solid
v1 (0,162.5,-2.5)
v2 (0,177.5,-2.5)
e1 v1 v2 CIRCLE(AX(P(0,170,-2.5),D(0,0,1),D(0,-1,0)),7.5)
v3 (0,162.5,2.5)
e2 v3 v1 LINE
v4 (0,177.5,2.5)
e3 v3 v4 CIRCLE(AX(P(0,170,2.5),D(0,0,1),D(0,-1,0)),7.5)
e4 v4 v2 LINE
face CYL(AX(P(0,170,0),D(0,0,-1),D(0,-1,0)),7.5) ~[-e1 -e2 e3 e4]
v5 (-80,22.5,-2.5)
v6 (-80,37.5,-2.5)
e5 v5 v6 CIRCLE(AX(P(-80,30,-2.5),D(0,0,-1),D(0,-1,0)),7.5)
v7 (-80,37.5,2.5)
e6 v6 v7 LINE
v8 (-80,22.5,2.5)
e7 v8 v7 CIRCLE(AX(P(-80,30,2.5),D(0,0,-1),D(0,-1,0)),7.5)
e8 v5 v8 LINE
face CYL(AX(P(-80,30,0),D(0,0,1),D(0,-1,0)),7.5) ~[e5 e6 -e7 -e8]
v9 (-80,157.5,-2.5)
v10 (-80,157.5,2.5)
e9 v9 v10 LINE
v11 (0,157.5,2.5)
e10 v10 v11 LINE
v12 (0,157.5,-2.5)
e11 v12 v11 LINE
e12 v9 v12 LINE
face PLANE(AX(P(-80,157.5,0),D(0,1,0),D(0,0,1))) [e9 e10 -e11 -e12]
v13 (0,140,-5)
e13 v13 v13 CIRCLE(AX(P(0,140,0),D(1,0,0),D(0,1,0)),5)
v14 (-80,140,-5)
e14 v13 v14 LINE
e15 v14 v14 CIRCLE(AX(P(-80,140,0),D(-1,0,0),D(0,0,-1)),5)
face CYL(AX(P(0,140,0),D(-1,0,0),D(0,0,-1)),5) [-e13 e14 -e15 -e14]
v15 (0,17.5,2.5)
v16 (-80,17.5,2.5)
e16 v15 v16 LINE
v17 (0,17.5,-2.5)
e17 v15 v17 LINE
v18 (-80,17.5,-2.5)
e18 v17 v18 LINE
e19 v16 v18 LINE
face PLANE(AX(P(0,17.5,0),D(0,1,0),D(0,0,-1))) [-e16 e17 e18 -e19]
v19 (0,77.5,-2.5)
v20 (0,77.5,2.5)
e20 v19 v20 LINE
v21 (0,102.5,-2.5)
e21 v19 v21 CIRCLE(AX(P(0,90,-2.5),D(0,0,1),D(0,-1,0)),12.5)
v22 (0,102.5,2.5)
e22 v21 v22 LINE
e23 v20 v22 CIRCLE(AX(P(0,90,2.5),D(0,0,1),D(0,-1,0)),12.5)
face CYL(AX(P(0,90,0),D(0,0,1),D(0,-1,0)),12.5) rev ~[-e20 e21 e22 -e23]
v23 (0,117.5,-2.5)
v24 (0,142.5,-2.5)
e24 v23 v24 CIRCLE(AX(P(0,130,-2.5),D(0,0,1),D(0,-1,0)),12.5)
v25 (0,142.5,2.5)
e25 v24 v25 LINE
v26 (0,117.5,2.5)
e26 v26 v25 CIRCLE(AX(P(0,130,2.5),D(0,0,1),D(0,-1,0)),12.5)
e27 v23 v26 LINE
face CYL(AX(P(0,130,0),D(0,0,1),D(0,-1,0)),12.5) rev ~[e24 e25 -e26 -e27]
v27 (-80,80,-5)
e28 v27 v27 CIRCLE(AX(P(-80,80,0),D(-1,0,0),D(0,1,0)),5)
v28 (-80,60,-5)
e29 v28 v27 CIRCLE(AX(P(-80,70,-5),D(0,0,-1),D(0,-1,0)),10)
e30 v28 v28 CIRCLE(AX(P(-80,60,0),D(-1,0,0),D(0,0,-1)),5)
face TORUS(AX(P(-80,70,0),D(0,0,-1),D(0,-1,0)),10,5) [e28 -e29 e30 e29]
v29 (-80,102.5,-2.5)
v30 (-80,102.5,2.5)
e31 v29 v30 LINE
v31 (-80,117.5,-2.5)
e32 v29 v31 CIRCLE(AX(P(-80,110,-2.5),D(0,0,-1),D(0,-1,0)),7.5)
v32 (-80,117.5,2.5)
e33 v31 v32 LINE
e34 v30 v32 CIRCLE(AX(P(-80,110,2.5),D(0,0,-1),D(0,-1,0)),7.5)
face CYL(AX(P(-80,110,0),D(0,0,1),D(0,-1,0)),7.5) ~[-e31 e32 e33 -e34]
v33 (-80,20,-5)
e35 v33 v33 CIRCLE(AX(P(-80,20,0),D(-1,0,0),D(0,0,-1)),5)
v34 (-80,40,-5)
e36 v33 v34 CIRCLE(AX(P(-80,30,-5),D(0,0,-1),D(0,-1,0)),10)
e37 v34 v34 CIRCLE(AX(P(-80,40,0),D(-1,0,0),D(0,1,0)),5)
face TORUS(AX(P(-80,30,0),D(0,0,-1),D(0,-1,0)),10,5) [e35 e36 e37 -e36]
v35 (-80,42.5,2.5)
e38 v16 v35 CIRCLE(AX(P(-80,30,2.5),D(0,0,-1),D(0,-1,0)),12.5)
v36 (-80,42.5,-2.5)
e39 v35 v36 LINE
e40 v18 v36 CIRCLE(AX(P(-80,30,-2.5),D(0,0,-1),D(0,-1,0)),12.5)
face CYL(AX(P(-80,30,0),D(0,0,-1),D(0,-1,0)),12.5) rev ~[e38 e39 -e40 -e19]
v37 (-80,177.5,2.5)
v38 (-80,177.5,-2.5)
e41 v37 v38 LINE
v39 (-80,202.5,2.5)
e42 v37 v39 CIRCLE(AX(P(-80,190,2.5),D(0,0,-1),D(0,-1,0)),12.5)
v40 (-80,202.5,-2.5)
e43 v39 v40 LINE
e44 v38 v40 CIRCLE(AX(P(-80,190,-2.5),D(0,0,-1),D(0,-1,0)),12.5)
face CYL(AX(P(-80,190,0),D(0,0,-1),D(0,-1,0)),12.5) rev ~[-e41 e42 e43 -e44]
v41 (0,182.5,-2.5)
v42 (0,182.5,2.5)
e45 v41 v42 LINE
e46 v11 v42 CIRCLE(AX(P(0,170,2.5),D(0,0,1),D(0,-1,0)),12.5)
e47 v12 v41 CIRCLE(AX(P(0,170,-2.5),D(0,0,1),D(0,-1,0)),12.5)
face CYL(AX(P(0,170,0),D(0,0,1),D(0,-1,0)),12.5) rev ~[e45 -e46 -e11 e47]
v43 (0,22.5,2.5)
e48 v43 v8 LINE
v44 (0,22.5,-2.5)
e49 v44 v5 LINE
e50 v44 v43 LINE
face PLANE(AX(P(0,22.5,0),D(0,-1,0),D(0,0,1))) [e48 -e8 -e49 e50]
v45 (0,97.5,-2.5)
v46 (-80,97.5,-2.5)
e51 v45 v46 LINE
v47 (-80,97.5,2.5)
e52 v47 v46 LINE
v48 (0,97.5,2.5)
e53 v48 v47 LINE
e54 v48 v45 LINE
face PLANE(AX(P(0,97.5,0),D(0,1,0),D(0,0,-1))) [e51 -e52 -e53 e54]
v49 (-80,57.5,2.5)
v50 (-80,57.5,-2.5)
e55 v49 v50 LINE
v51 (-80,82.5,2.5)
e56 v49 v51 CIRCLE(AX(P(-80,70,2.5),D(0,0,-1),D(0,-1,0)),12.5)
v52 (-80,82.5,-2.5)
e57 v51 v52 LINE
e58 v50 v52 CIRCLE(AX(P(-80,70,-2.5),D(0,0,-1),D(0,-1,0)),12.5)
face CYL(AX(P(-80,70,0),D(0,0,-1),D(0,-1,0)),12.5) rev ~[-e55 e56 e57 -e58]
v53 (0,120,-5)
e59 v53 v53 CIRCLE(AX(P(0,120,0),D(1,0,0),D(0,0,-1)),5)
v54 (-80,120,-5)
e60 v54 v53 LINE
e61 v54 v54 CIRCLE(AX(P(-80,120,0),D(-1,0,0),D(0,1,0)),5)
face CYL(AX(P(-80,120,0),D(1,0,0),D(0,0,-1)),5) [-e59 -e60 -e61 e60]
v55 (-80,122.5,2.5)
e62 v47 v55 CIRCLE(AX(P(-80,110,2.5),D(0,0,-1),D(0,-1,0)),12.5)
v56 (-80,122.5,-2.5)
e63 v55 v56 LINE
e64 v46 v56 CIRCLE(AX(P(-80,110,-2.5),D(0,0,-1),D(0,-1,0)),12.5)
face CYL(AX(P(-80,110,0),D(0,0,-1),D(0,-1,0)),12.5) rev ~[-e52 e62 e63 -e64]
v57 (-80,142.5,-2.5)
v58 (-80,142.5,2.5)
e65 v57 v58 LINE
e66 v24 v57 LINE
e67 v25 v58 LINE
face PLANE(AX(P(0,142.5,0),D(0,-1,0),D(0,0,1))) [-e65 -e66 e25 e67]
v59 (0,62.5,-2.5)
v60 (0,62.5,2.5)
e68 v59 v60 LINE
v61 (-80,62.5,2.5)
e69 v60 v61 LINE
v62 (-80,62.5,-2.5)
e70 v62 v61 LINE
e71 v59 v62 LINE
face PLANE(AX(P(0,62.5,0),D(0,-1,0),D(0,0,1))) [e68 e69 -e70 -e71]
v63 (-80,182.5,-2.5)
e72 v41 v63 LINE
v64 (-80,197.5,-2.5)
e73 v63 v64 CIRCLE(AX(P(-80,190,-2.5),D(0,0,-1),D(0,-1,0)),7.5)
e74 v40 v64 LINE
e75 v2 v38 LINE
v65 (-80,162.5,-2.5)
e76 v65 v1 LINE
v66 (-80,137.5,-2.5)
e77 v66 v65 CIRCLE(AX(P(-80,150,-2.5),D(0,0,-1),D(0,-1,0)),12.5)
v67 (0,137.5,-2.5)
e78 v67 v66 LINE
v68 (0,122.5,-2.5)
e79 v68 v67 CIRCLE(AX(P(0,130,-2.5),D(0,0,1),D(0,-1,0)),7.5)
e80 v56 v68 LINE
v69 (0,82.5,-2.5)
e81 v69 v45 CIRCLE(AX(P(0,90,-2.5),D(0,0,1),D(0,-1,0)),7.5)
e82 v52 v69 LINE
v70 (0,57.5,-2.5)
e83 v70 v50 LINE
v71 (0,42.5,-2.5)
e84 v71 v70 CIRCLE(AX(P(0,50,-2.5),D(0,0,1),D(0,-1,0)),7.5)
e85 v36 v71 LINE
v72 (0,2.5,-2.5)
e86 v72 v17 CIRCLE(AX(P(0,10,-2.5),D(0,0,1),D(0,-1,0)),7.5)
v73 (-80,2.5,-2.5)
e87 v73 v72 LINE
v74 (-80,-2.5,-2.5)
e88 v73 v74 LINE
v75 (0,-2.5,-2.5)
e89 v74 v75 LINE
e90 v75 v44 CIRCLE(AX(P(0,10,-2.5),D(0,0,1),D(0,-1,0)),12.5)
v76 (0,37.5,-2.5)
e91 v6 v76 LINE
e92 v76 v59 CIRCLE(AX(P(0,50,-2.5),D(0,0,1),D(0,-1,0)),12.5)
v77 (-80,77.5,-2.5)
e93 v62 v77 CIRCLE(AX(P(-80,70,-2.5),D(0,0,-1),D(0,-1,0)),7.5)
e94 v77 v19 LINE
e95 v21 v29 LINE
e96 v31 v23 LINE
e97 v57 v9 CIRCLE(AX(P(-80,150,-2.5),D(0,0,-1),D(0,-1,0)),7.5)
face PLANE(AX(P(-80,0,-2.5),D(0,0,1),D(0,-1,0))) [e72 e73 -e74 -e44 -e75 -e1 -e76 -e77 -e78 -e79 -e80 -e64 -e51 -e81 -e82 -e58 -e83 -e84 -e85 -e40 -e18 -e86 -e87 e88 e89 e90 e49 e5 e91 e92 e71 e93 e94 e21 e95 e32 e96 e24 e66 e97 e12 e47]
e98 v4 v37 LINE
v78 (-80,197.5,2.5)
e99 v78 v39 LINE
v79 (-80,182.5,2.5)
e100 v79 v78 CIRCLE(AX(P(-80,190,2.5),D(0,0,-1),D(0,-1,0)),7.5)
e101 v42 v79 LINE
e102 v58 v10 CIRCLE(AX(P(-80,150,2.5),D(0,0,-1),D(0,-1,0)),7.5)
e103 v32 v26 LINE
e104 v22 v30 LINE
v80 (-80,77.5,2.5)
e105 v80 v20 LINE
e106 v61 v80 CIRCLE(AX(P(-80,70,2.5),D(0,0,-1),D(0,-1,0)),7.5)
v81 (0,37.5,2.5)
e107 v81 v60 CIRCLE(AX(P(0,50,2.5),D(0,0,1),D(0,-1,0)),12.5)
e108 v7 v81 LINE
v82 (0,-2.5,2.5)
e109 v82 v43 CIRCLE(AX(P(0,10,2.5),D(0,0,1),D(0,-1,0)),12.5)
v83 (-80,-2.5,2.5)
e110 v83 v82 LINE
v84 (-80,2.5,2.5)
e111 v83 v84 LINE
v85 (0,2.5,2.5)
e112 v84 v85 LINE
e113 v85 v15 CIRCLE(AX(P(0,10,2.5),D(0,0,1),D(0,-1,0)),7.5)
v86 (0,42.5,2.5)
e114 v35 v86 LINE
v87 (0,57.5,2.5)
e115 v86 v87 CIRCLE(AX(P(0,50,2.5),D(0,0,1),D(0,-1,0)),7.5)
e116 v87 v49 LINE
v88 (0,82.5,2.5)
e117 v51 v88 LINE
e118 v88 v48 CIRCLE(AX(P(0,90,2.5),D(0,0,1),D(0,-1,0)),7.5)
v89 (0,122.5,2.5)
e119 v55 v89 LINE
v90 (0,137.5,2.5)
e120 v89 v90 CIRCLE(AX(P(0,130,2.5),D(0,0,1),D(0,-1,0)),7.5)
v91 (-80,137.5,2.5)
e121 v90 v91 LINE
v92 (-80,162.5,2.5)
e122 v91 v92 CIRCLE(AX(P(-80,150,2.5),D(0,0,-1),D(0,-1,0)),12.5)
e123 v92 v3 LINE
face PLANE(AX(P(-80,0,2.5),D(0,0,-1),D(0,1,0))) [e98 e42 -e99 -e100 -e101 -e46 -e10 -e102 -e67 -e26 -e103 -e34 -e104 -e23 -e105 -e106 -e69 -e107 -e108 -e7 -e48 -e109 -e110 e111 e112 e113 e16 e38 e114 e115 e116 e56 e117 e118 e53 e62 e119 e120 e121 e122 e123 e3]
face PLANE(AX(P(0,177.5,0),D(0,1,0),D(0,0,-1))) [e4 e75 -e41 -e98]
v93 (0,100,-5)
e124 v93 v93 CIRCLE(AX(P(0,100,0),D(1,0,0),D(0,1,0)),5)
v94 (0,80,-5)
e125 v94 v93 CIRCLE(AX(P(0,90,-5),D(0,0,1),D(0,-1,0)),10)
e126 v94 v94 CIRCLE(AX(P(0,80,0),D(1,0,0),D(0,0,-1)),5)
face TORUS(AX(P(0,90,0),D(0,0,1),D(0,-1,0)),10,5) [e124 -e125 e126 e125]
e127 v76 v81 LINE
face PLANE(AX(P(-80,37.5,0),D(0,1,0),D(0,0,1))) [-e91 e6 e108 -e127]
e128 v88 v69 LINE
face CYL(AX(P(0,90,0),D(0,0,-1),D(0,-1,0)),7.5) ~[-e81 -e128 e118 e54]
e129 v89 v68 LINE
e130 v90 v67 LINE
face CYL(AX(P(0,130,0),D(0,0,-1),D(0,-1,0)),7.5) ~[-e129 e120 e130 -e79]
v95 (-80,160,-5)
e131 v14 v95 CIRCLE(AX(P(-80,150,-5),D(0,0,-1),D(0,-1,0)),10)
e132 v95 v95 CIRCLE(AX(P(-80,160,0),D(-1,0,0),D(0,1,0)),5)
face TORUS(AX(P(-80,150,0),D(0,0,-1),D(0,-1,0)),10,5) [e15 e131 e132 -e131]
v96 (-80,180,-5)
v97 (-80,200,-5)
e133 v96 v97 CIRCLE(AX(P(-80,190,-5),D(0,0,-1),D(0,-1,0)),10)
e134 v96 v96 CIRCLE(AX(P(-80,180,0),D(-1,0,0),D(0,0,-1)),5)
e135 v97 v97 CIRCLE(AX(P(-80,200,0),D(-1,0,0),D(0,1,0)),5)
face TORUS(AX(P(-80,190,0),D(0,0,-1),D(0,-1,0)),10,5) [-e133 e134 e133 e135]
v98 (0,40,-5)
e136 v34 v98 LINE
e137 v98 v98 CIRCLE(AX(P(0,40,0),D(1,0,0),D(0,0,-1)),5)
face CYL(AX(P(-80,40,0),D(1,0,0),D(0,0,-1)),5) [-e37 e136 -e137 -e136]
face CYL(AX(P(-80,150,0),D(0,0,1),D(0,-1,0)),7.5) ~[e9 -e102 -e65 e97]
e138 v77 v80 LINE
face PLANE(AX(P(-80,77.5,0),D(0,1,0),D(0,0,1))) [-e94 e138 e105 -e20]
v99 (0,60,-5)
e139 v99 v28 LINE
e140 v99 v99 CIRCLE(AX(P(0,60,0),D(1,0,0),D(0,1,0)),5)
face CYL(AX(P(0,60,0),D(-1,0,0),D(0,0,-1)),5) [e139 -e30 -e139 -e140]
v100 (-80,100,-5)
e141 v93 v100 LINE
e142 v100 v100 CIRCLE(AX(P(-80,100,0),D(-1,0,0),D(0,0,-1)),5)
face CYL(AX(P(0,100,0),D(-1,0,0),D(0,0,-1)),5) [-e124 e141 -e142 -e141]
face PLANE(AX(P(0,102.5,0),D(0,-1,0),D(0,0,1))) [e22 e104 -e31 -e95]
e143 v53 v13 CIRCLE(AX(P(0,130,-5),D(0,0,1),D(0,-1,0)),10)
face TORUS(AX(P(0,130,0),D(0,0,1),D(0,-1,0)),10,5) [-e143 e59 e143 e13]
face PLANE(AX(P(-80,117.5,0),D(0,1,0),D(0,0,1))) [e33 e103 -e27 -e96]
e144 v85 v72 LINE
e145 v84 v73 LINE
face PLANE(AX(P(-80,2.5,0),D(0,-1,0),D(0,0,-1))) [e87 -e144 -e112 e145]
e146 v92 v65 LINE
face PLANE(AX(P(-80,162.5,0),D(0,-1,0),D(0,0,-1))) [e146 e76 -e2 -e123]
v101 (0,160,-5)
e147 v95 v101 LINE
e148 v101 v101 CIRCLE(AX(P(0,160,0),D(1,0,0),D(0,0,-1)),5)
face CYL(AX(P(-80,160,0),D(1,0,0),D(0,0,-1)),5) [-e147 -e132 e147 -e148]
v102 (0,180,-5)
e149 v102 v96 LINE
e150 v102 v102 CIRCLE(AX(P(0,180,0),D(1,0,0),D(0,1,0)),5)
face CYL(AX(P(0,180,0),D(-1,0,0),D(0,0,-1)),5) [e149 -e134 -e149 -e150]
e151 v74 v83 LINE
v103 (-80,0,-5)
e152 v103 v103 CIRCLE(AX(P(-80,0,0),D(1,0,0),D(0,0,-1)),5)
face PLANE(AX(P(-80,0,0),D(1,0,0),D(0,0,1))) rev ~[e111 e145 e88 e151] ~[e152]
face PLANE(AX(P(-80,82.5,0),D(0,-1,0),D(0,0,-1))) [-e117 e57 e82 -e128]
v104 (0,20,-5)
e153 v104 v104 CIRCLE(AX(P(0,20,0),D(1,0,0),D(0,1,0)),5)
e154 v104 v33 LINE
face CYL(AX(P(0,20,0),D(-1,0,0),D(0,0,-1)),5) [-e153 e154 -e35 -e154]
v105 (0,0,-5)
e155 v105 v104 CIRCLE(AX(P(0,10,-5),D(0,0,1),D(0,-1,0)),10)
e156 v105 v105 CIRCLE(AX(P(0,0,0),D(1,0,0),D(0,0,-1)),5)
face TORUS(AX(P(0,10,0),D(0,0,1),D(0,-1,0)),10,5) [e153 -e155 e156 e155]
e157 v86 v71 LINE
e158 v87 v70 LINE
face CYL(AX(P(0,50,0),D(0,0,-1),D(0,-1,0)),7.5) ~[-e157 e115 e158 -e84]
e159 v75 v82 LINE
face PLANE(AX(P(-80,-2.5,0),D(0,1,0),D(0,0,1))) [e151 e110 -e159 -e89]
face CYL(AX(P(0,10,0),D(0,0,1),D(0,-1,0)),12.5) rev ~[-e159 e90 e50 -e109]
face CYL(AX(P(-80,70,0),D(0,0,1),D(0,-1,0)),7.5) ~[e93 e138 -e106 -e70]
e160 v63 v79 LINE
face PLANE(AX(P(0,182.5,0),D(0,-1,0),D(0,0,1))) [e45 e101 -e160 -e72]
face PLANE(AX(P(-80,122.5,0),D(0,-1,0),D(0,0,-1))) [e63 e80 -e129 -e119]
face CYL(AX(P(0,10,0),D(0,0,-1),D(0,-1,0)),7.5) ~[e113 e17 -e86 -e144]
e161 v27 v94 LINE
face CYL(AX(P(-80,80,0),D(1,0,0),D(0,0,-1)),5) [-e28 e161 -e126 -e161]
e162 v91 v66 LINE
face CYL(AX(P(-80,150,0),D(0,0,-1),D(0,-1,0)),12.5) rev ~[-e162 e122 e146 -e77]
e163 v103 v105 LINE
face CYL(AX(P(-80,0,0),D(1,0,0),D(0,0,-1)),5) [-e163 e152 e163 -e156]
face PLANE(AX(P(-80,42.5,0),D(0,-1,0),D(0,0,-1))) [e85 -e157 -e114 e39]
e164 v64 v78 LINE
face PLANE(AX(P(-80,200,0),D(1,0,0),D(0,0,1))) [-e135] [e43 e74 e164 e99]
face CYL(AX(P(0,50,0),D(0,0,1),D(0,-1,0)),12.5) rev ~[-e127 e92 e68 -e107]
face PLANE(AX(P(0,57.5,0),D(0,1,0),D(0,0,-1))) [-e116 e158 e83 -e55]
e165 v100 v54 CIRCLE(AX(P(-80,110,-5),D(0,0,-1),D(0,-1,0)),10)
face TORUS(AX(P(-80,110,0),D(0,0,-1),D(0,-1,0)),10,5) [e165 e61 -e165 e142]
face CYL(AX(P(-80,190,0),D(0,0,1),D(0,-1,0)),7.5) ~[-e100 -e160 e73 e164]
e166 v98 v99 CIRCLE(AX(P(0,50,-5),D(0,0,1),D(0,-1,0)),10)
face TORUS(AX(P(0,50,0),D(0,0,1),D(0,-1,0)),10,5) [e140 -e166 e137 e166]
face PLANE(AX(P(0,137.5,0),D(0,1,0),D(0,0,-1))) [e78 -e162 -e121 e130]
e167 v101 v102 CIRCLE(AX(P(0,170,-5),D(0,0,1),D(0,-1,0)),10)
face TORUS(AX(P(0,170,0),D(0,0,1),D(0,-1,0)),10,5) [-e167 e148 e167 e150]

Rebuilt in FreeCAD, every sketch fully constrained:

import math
import FreeCAD as App
import Part
import Sketcher

V = App.Vector
Q = App.Units.Quantity

doc = App.newDocument("Part")
body = doc.addObject("PartDesign::Body", "Body")

# Sketch on YZ plane
sketch1 = body.newObject("Sketcher::SketchObject", "Sketch")
sketch1.AttachmentSupport = (doc.getObject("YZ_Plane"), [""])
sketch1.MapMode = "FlatFace"
sketch1.AttachmentOffset = App.Placement(V(0, 0, -80), App.Rotation())
sketch1.addGeometry([
    Part.Circle(V(0, 0, 0), V(0, 0, 1), 5),  # 0
    Part.LineSegment(V(-2, -2, 0), V(-2, 2, 0)),  # 1
    Part.LineSegment(V(-2, 2, 0), V(2, 2, 0)),  # 2
    Part.LineSegment(V(2, 2, 0), V(2, -2, 0)),  # 3
    Part.LineSegment(V(2, -2, 0), V(-2, -2, 0)),  # 4
], False)
sketch1.addConstraint([
    Sketcher.Constraint("Coincident", 1, 2, 2, 1),
    Sketcher.Constraint("Coincident", 2, 2, 3, 1),
    Sketcher.Constraint("Coincident", 3, 2, 4, 1),
    Sketcher.Constraint("Coincident", 4, 2, 1, 1),
    Sketcher.Constraint("Vertical", 1),
    Sketcher.Constraint("Horizontal", 2),
    Sketcher.Constraint("Vertical", 3),
    Sketcher.Constraint("Horizontal", 4),
    Sketcher.Constraint("Coincident", 0, 3, -1, 1),
    Sketcher.Constraint("Symmetric", 1, 2, 3, 2, -1, 1),
    Sketcher.Constraint("Equal", 4, 1),
    Sketcher.Constraint("Diameter", 0, Q("10 mm")),
    Sketcher.Constraint("DistanceX", 2, 1, 2, 2, Q("5 mm")),
])

# Sketch on XY plane
sketch2 = body.newObject("Sketcher::SketchObject", "Sketch001")
sketch2.AttachmentSupport = (doc.getObject("XY_Plane"), [""])
sketch2.MapMode = "FlatFace"
sketch2.addGeometry([
    Part.LineSegment(V(-80, 0, 0), V(0, 0, 0)),  # 0
    Part.ArcOfCircle(Part.Circle(V(0, 10, 0), V(0, 0, 1), 10), math.radians(-90), math.radians(90)),  # 1
    Part.LineSegment(V(0, 20, 0), V(-80, 20, 0)),  # 2
    Part.ArcOfCircle(Part.Circle(V(-80, 30, 0), V(0, 0, 1), 10), math.radians(90), math.radians(270)),  # 3
    Part.LineSegment(V(-80, 40, 0), V(0, 40, 0)),  # 4
    Part.ArcOfCircle(Part.Circle(V(0, 50, 0), V(0, 0, 1), 10), math.radians(-90), math.radians(90)),  # 5
    Part.LineSegment(V(0, 60, 0), V(-80, 60, 0)),  # 6
    Part.ArcOfCircle(Part.Circle(V(-80, 70, 0), V(0, 0, 1), 10), math.radians(90), math.radians(270)),  # 7
    Part.LineSegment(V(-80, 80, 0), V(0, 80, 0)),  # 8
    Part.ArcOfCircle(Part.Circle(V(0, 90, 0), V(0, 0, 1), 10), math.radians(-90), math.radians(90)),  # 9
    Part.LineSegment(V(0, 100, 0), V(-80, 100, 0)),  # 10
    Part.ArcOfCircle(Part.Circle(V(-80, 110, 0), V(0, 0, 1), 10), math.radians(90), math.radians(270)),  # 11
    Part.LineSegment(V(-80, 120, 0), V(0, 120, 0)),  # 12
    Part.ArcOfCircle(Part.Circle(V(0, 130, 0), V(0, 0, 1), 10), math.radians(-90), math.radians(90)),  # 13
    Part.LineSegment(V(0, 140, 0), V(-80, 140, 0)),  # 14
    Part.ArcOfCircle(Part.Circle(V(-80, 150, 0), V(0, 0, 1), 10), math.radians(90), math.radians(270)),  # 15
    Part.LineSegment(V(-80, 160, 0), V(0, 160, 0)),  # 16
    Part.ArcOfCircle(Part.Circle(V(0, 170, 0), V(0, 0, 1), 10), math.radians(-90), math.radians(90)),  # 17
    Part.LineSegment(V(0, 180, 0), V(-80, 180, 0)),  # 18
    Part.ArcOfCircle(Part.Circle(V(-80, 190, 0), V(0, 0, 1), 10), math.radians(90), math.radians(270)),  # 19
], False)
sketch2.addConstraint([
    Sketcher.Constraint("Tangent", 0, 2, 1, 1),
    Sketcher.Constraint("Tangent", 1, 2, 2, 1),
    Sketcher.Constraint("Tangent", 2, 2, 3, 2),
    Sketcher.Constraint("Tangent", 3, 1, 4, 1),
    Sketcher.Constraint("Tangent", 4, 2, 5, 1),
    Sketcher.Constraint("Tangent", 5, 2, 6, 1),
    Sketcher.Constraint("Tangent", 6, 2, 7, 2),
    Sketcher.Constraint("Tangent", 7, 1, 8, 1),
    Sketcher.Constraint("Tangent", 8, 2, 9, 1),
    Sketcher.Constraint("Tangent", 9, 2, 10, 1),
    Sketcher.Constraint("Tangent", 10, 2, 11, 2),
    Sketcher.Constraint("Tangent", 11, 1, 12, 1),
    Sketcher.Constraint("Tangent", 12, 2, 13, 1),
    Sketcher.Constraint("Tangent", 13, 2, 14, 1),
    Sketcher.Constraint("Tangent", 14, 2, 15, 2),
    Sketcher.Constraint("Tangent", 15, 1, 16, 1),
    Sketcher.Constraint("Tangent", 16, 2, 17, 1),
    Sketcher.Constraint("Tangent", 17, 2, 18, 1),
    Sketcher.Constraint("Tangent", 18, 2, 19, 2),
    Sketcher.Constraint("Horizontal", 0),
    Sketcher.Constraint("Horizontal", 2),
    Sketcher.Constraint("Horizontal", 4),
    Sketcher.Constraint("Horizontal", 6),
    Sketcher.Constraint("Horizontal", 8),
    Sketcher.Constraint("Horizontal", 10),
    Sketcher.Constraint("Horizontal", 12),
    Sketcher.Constraint("Horizontal", 14),
    Sketcher.Constraint("Horizontal", 16),
    Sketcher.Constraint("Horizontal", 18),
    Sketcher.Constraint("Coincident", 0, 2, -1, 1),
    Sketcher.Constraint("Equal", 1, 3),
    Sketcher.Constraint("Equal", 3, 5),
    Sketcher.Constraint("Equal", 5, 7),
    Sketcher.Constraint("Equal", 7, 9),
    Sketcher.Constraint("Equal", 9, 11),
    Sketcher.Constraint("Equal", 11, 13),
    Sketcher.Constraint("Equal", 13, 15),
    Sketcher.Constraint("Equal", 15, 17),
    Sketcher.Constraint("Equal", 17, 19),
    Sketcher.Constraint("PointOnObject", 5, 3, -2),
    Sketcher.Constraint("PointOnObject", 9, 3, -2),
    Sketcher.Constraint("PointOnObject", 13, 3, -2),
    Sketcher.Constraint("PointOnObject", 17, 3, -2),
    Sketcher.Constraint("Vertical", 3, 3, 7, 3),
    Sketcher.Constraint("Vertical", 7, 3, 11, 3),
    Sketcher.Constraint("Vertical", 11, 3, 15, 3),
    Sketcher.Constraint("Vertical", 15, 3, 19, 3),
    Sketcher.Constraint("Vertical", 19, 3, 0, 1),
    Sketcher.Constraint("Vertical", 18, 2, 19, 1),
    Sketcher.Constraint("Radius", 1, Q("10 mm")),
    Sketcher.Constraint("DistanceX", 0, 1, 0, 2, Q("80 mm")),
])
doc.recompute()

additivepipe = body.newObject("PartDesign::AdditivePipe", "AdditivePipe")
additivepipe.Profile = sketch1
additivepipe.Spine = (sketch2, ["Edge1", "Edge2", "Edge3", "Edge4", "Edge5", "Edge6", "Edge7", "Edge8", "Edge9", "Edge10", "Edge11", "Edge12", "Edge13", "Edge14", "Edge15", "Edge16", "Edge17", "Edge18", "Edge19", "Edge20"])

doc.recompute()
